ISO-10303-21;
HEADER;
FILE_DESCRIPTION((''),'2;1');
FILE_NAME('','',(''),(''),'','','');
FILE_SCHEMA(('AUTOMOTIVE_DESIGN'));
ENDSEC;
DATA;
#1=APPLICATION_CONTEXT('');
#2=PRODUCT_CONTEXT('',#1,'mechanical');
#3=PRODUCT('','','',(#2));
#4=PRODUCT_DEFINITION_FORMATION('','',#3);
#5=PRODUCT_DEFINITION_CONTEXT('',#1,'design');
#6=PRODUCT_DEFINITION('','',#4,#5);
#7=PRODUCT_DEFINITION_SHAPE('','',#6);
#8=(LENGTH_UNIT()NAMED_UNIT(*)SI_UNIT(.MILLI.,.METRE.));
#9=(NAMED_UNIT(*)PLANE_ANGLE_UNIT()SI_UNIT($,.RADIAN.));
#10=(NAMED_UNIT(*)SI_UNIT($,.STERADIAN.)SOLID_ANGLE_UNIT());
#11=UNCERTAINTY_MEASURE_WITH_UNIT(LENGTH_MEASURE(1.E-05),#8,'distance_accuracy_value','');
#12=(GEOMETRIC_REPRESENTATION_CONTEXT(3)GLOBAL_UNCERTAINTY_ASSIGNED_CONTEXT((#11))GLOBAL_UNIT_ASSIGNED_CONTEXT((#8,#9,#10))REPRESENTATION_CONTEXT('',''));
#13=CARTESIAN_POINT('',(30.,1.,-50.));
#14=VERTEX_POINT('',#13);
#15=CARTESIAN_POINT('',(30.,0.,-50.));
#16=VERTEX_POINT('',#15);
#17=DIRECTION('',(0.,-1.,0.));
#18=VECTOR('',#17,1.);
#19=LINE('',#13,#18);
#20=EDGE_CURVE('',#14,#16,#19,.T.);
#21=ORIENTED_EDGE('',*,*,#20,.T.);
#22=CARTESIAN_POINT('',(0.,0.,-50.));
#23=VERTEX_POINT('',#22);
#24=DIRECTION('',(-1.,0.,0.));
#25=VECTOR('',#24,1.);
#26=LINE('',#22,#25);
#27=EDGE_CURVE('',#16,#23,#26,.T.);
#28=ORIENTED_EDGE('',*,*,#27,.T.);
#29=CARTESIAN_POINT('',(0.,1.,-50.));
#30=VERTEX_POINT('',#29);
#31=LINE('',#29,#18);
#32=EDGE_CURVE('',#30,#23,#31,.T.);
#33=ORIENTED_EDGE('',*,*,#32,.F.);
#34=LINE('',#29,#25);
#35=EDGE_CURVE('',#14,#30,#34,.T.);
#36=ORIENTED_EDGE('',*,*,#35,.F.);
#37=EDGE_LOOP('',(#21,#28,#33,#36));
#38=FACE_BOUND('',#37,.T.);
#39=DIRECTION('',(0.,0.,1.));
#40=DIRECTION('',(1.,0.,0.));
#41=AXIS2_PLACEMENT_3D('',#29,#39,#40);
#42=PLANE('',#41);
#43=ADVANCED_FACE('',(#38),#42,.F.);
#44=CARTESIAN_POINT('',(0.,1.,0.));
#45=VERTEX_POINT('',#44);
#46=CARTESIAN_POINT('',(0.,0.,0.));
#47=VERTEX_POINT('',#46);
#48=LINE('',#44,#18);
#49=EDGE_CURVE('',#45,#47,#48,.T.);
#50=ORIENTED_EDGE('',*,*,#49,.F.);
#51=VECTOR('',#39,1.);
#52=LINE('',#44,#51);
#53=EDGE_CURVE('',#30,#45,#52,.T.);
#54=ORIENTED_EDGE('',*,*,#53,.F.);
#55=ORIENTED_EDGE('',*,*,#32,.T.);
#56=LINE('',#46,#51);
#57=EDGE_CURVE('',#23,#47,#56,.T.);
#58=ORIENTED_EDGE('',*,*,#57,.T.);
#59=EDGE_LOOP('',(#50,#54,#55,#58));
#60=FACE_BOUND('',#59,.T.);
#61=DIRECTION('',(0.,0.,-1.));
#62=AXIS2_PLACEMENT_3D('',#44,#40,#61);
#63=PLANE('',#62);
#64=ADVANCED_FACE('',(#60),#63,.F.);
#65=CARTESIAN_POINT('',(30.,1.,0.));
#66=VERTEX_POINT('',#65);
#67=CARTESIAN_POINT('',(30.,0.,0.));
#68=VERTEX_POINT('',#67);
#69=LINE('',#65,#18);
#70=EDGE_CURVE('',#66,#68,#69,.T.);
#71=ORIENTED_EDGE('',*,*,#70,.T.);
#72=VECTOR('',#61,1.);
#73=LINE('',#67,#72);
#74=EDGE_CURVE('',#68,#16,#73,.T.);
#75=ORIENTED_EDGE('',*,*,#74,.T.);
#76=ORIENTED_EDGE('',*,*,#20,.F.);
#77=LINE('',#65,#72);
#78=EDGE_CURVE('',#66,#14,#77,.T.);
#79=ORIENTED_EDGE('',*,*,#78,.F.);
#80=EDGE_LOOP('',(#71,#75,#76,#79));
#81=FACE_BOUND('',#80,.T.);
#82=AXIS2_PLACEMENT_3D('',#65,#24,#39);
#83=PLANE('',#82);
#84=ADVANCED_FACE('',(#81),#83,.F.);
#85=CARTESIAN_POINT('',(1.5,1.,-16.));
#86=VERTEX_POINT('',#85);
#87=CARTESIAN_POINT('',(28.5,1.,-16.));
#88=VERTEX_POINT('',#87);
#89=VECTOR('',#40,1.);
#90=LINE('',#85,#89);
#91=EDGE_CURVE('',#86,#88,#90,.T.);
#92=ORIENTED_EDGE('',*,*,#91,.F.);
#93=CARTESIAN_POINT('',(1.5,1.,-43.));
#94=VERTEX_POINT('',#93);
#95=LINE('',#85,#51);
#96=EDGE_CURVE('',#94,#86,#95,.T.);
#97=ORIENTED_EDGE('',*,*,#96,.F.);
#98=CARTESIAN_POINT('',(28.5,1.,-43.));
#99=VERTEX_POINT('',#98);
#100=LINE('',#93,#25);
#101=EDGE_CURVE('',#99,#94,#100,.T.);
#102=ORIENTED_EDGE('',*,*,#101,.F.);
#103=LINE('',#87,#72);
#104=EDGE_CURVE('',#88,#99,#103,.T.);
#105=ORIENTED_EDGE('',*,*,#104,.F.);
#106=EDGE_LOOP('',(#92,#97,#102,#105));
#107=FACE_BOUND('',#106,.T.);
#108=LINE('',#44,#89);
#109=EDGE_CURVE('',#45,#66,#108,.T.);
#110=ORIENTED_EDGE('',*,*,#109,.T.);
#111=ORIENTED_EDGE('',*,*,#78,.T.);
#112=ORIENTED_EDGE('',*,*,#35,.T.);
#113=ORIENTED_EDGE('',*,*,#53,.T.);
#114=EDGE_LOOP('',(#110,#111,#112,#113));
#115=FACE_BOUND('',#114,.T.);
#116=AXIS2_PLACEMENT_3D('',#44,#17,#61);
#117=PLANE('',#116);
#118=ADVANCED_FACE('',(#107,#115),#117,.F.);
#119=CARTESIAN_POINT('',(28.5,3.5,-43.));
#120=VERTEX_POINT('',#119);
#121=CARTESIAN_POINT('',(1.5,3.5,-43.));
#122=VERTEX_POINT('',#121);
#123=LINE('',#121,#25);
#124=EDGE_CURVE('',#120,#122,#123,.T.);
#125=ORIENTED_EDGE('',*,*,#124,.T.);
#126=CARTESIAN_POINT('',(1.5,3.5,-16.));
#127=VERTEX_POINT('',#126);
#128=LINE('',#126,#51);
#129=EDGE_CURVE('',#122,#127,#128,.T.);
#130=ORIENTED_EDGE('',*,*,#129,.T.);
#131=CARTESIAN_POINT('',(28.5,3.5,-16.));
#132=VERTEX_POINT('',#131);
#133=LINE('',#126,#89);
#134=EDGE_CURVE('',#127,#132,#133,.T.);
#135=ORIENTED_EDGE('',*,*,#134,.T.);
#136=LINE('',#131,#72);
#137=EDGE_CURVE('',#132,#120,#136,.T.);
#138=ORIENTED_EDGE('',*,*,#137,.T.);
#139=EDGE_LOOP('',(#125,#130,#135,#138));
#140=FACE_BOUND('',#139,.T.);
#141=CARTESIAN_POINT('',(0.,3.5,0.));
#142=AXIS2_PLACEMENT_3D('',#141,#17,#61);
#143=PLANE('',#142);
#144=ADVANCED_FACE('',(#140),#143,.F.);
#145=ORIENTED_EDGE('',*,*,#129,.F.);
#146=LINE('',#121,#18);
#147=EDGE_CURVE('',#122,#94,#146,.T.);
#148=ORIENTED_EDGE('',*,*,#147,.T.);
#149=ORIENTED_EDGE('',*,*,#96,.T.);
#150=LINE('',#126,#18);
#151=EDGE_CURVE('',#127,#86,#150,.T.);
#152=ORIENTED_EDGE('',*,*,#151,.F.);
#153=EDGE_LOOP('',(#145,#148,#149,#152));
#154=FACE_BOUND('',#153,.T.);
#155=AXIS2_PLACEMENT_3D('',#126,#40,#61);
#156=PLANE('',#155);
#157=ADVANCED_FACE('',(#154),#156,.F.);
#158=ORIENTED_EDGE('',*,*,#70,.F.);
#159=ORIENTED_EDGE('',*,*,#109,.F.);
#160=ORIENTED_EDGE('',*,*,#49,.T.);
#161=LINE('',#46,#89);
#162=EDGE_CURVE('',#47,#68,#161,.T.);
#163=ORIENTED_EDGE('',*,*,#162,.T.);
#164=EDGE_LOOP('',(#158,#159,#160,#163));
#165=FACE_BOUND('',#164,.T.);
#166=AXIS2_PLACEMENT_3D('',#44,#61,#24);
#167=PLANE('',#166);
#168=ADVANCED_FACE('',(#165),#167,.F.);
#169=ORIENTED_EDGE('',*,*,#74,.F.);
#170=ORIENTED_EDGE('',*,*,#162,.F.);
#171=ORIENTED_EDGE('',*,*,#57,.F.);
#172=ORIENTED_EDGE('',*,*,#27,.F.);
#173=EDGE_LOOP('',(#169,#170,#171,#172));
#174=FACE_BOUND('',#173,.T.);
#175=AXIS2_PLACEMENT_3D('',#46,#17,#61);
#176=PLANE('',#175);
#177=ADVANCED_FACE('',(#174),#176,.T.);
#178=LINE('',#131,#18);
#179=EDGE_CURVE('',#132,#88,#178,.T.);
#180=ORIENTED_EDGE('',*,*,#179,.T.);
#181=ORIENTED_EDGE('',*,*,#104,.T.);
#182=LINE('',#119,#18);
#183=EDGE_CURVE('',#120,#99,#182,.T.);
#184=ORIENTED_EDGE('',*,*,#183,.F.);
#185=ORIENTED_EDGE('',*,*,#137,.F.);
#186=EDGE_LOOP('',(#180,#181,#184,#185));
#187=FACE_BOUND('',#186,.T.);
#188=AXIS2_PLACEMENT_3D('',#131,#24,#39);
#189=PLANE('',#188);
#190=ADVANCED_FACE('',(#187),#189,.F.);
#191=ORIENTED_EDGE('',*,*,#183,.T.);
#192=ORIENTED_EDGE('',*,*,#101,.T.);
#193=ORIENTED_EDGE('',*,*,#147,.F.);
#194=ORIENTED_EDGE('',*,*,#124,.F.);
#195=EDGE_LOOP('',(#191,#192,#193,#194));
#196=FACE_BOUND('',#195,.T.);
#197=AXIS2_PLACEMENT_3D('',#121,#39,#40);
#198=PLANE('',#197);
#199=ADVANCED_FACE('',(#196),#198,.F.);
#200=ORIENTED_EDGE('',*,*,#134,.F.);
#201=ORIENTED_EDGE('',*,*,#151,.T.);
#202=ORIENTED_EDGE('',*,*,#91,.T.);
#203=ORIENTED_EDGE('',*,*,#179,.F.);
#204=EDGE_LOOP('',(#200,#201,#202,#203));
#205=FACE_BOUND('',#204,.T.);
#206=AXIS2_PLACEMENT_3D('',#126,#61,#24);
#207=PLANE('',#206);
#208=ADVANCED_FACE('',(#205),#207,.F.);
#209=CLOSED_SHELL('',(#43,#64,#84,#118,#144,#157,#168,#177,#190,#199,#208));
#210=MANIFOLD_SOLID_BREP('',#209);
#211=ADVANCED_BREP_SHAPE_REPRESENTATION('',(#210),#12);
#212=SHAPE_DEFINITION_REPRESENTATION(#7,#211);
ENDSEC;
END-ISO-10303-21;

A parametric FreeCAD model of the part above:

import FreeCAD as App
import Part
import Sketcher

V = App.Vector


def add_polygon(sketch, points):
    """Adds a closed chain of lines whose ends are joined by coincident constraints."""
    first, n = sketch.GeometryCount, len(points)
    for a, b in zip(points, points[1:] + points[:1]):
        sketch.addGeometry(Part.LineSegment(App.Vector(*a, 0), App.Vector(*b, 0)), False)
    for i in range(n):
        sketch.addConstraint(Sketcher.Constraint("Coincident", first + i, 2, first + (i + 1) % n, 1))

doc = App.newDocument("Part")
params = doc.addObject("Spreadsheet::Sheet", "Params")
for row, (alias, value) in enumerate([
    ("sketch1_width", "30 mm"),
    ("sketch1_height", "50 mm"),
    ("pad1_length", "1 mm"),
    ("sketch2_width", "27 mm"),
    ("pad2_length", "2.5 mm"),
], start=1):
    params.set(f"A{row}", alias)
    params.set(f"B{row}", "=" + value)
    params.setAlias(f"B{row}", alias)

body = doc.addObject("PartDesign::Body", "Body")

sketch1 = body.newObject("Sketcher::SketchObject", "Sketch")
sketch1.AttachmentSupport = (doc.getObject("XZ_Plane"), [""])
sketch1.MapMode = "FlatFace"
add_polygon(sketch1, [(0, -50), (0, 0), (30, 0), (30, -50)])
sketch1.addConstraint([
    Sketcher.Constraint("Vertical", 0),
    Sketcher.Constraint("Horizontal", 1),
    Sketcher.Constraint("Vertical", 2),
    Sketcher.Constraint("Horizontal", 3),
    Sketcher.Constraint("Coincident", 0, 2, -1, 1),
    Sketcher.Constraint("DistanceX", 1, 1, 1, 2, 30.0),
    Sketcher.Constraint("DistanceY", 0, 1, 0, 2, 50.0),
])
sketch1.setExpression("Constraints[9]", "Params.sketch1_width")
sketch1.setExpression("Constraints[10]", "Params.sketch1_height")
pad1 = body.newObject("PartDesign::Pad", "Pad")
pad1.Profile = sketch1
pad1.setExpression("Length", "Params.pad1_length")
pad1.Reversed = True

sketch2 = body.newObject("Sketcher::SketchObject", "Sketch001")
sketch2.AttachmentSupport = (doc.getObject("XZ_Plane"), [""])
sketch2.MapMode = "FlatFace"
sketch2.AttachmentOffset = App.Placement(V(0, 0, -1), App.Rotation())
add_polygon(sketch2, [(2, -43), (2, -16), (28, -16), (28, -43)])
sketch2.addConstraint([
    Sketcher.Constraint("Vertical", 0),
    Sketcher.Constraint("Horizontal", 1),
    Sketcher.Constraint("Vertical", 2),
    Sketcher.Constraint("Horizontal", 3),
    Sketcher.Constraint("Equal", 3, 0),
    Sketcher.Constraint("DistanceX", 1, 1, 1, 2, 27.0),
    Sketcher.Constraint("DistanceY", 0, 2, -1, 1, 16.0),
    Sketcher.Constraint("DistanceX", -1, 1, 0, 2, 1.5),
])
sketch2.setExpression("Constraints[9]", "Params.sketch2_width")
pad2 = body.newObject("PartDesign::Pad", "Pad001")
pad2.Profile = sketch2
pad2.setExpression("Length", "Params.pad2_length")
pad2.Reversed = True

doc.recompute()
